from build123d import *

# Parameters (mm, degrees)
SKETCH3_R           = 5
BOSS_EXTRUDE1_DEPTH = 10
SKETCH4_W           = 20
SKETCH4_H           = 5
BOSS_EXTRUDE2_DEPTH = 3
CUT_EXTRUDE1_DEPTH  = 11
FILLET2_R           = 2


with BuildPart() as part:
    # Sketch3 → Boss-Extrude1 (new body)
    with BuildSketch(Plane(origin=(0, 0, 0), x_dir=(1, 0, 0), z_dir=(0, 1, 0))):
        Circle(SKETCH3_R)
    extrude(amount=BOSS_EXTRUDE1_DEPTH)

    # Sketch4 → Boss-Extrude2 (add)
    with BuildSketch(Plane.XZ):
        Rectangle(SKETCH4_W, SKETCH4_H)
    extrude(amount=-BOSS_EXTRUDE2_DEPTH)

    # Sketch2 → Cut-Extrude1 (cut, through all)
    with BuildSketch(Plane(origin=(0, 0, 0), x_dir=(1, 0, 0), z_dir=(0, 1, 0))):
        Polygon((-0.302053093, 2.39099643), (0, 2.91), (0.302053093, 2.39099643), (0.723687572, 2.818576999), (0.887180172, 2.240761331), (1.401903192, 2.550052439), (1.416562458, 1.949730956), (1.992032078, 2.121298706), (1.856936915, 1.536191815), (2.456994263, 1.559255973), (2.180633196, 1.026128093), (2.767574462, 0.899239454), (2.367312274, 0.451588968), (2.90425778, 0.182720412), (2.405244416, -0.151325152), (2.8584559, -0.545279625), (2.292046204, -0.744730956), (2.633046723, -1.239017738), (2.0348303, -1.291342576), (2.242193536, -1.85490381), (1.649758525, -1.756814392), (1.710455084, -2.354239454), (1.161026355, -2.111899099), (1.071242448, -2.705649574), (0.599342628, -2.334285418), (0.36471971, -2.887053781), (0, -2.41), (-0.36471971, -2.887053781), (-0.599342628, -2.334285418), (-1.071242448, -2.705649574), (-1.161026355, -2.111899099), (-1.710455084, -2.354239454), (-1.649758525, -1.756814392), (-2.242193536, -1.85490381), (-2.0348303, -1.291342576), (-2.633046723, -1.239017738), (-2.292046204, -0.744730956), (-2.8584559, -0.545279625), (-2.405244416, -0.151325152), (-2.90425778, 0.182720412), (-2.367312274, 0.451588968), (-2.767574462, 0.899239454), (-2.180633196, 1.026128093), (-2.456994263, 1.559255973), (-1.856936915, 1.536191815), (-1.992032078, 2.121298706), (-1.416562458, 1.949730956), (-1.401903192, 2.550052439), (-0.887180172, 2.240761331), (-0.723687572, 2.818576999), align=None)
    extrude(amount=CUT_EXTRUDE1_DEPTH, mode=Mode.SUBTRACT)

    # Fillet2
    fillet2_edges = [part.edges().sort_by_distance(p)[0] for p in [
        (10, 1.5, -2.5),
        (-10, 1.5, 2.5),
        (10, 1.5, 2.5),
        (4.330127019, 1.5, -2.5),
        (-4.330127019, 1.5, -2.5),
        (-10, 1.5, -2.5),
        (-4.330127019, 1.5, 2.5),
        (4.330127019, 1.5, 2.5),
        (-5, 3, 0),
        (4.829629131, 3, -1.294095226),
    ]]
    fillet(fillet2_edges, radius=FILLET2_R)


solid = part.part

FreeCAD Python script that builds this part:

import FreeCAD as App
import Part
import Sketcher


def edges_at(feature, points):
    """Names of the edges that pass closest to the given points."""
    edges = feature.Shape.Edges
    near = lambda p: min(range(len(edges)), key=lambda i: edges[i].distToShape(Part.Vertex(*p))[0])
    return sorted({f"Edge{near(p) + 1}" for p in points})

doc = App.newDocument("Part")
body = doc.addObject("PartDesign::Body", "Body")

sketch1 = body.newObject("Sketcher::SketchObject", "Sketch")
sketch1.AttachmentSupport = (doc.getObject("XZ_Plane"), [""])
sketch1.MapMode = "FlatFace"
sketch1.addGeometry(Part.Circle(App.Vector(0, 0, 0), App.Vector(0, 0, 1), 5), False)
sketch1.addConstraint(Sketcher.Constraint("Coincident", 0, 3, -1, 1))
sketch1.addConstraint(Sketcher.Constraint("Diameter", 0, 10.0))
pad1 = body.newObject("PartDesign::Pad", "Pad")
pad1.Profile = sketch1
pad1.Length = 10
pad1.Reversed = True

sketch2 = body.newObject("Sketcher::SketchObject", "Sketch001")
sketch2.AttachmentSupport = (doc.getObject("XZ_Plane"), [""])
sketch2.MapMode = "FlatFace"
sketch2.addGeometry(Part.LineSegment(App.Vector(-10, 2, 0), App.Vector(-10, -2, 0)), False)
sketch2.addGeometry(Part.LineSegment(App.Vector(-10, -2, 0), App.Vector(10, -2, 0)), False)
sketch2.addGeometry(Part.LineSegment(App.Vector(10, -2, 0), App.Vector(10, 2, 0)), False)
sketch2.addGeometry(Part.LineSegment(App.Vector(10, 2, 0), App.Vector(-10, 2, 0)), False)
sketch2.addConstraint(Sketcher.Constraint("Coincident", 0, 2, 1, 1))
sketch2.addConstraint(Sketcher.Constraint("Coincident", 1, 2, 2, 1))
sketch2.addConstraint(Sketcher.Constraint("Coincident", 2, 2, 3, 1))
sketch2.addConstraint(Sketcher.Constraint("Coincident", 3, 2, 0, 1))
sketch2.addConstraint(Sketcher.Constraint("Vertical", 0))
sketch2.addConstraint(Sketcher.Constraint("Horizontal", 1))
sketch2.addConstraint(Sketcher.Constraint("Vertical", 2))
sketch2.addConstraint(Sketcher.Constraint("Horizontal", 3))
sketch2.addConstraint(Sketcher.Constraint("Symmetric", 0, 2, 2, 2, -1, 1))
sketch2.addConstraint(Sketcher.Constraint("DistanceX", 1, 1, 1, 2, 20.0))
sketch2.addConstraint(Sketcher.Constraint("DistanceY", 0, 2, 0, 1, 5.0))
pad2 = body.newObject("PartDesign::Pad", "Pad001")
pad2.Profile = sketch2
pad2.Length = 3
pad2.Reversed = True

sketch3 = body.newObject("Sketcher::SketchObject", "Sketch002")
sketch3.AttachmentSupport = (doc.getObject("XZ_Plane"), [""])
sketch3.MapMode = "FlatFace"
sketch3.addGeometry(Part.LineSegment(App.Vector(0, -2.9, 0), App.Vector(-0.3, -2.4, 0)), False)
sketch3.addGeometry(Part.LineSegment(App.Vector(-0.3, -2.4, 0), App.Vector(-0.7, -2.8, 0)), False)
sketch3.addGeometry(Part.LineSegment(App.Vector(-0.7, -2.8, 0), App.Vector(-0.9, -2.2, 0)), False)
sketch3.addGeometry(Part.LineSegment(App.Vector(-0.9, -2.2, 0), App.Vector(-1.4, -2.6, 0)), False)
sketch3.addGeometry(Part.LineSegment(App.Vector(-1.4, -2.6, 0), App.Vector(-1.4, -1.9, 0)), False)
sketch3.addGeometry(Part.LineSegment(App.Vector(-1.4, -1.9, 0), App.Vector(-2, -2.1, 0)), False)
sketch3.addGeometry(Part.LineSegment(App.Vector(-2, -2.1, 0), App.Vector(-1.9, -1.5, 0)), False)
sketch3.addGeometry(Part.LineSegment(App.Vector(-1.9, -1.5, 0), App.Vector(-2.5, -1.6, 0)), False)
sketch3.addGeometry(Part.LineSegment(App.Vector(-2.5, -1.6, 0), App.Vector(-2.2, -1, 0)), False)
sketch3.addGeometry(Part.LineSegment(App.Vector(-2.2, -1, 0), App.Vector(-2.8, -0.9, 0)), False)
sketch3.addGeometry(Part.LineSegment(App.Vector(-2.8, -0.9, 0), App.Vector(-2.4, -0.5, 0)), False)
sketch3.addGeometry(Part.LineSegment(App.Vector(-2.4, -0.5, 0), App.Vector(-2.9, -0.2, 0)), False)
sketch3.addGeometry(Part.LineSegment(App.Vector(-2.9, -0.2, 0), App.Vector(-2.4, 0.2, 0)), False)
sketch3.addGeometry(Part.LineSegment(App.Vector(-2.4, 0.2, 0), App.Vector(-2.9, 0.5, 0)), False)
sketch3.addGeometry(Part.LineSegment(App.Vector(-2.9, 0.5, 0), App.Vector(-2.3, 0.7, 0)), False)
sketch3.addGeometry(Part.LineSegment(App.Vector(-2.3, 0.7, 0), App.Vector(-2.6, 1.2, 0)), False)
sketch3.addGeometry(Part.LineSegment(App.Vector(-2.6, 1.2, 0), App.Vector(-2, 1.3, 0)), False)
sketch3.addGeometry(Part.LineSegment(App.Vector(-2, 1.3, 0), App.Vector(-2.2, 1.9, 0)), False)
sketch3.addGeometry(Part.LineSegment(App.Vector(-2.2, 1.9, 0), App.Vector(-1.6, 1.8, 0)), False)
sketch3.addGeometry(Part.LineSegment(App.Vector(-1.6, 1.8, 0), App.Vector(-1.7, 2.4, 0)), False)
sketch3.addGeometry(Part.LineSegment(App.Vector(-1.7, 2.4, 0), App.Vector(-1.2, 2.1, 0)), False)
sketch3.addGeometry(Part.LineSegment(App.Vector(-1.2, 2.1, 0), App.Vector(-1.1, 2.7, 0)), False)
sketch3.addGeometry(Part.LineSegment(App.Vector(-1.1, 2.7, 0), App.Vector(-0.6, 2.3, 0)), False)
sketch3.addGeometry(Part.LineSegment(App.Vector(-0.6, 2.3, 0), App.Vector(-0.4, 2.9, 0)), False)
sketch3.addGeometry(Part.LineSegment(App.Vector(-0.4, 2.9, 0), App.Vector(0, 2.4, 0)), False)
sketch3.addGeometry(Part.LineSegment(App.Vector(0, 2.4, 0), App.Vector(0.4, 2.9, 0)), False)
sketch3.addGeometry(Part.LineSegment(App.Vector(0.4, 2.9, 0), App.Vector(0.6, 2.3, 0)), False)
sketch3.addGeometry(Part.LineSegment(App.Vector(0.6, 2.3, 0), App.Vector(1.1, 2.7, 0)), False)
sketch3.addGeometry(Part.LineSegment(App.Vector(1.1, 2.7, 0), App.Vector(1.2, 2.1, 0)), False)
sketch3.addGeometry(Part.LineSegment(App.Vector(1.2, 2.1, 0), App.Vector(1.7, 2.4, 0)), False)
sketch3.addGeometry(Part.LineSegment(App.Vector(1.7, 2.4, 0), App.Vector(1.6, 1.8, 0)), False)
sketch3.addGeometry(Part.LineSegment(App.Vector(1.6, 1.8, 0), App.Vector(2.2, 1.9, 0)), False)
sketch3.addGeometry(Part.LineSegment(App.Vector(2.2, 1.9, 0), App.Vector(2, 1.3, 0)), False)
sketch3.addGeometry(Part.LineSegment(App.Vector(2, 1.3, 0), App.Vector(2.6, 1.2, 0)), False)
sketch3.addGeometry(Part.LineSegment(App.Vector(2.6, 1.2, 0), App.Vector(2.3, 0.7, 0)), False)
sketch3.addGeometry(Part.LineSegment(App.Vector(2.3, 0.7, 0), App.Vector(2.9, 0.5, 0)), False)
sketch3.addGeometry(Part.LineSegment(App.Vector(2.9, 0.5, 0), App.Vector(2.4, 0.2, 0)), False)
sketch3.addGeometry(Part.LineSegment(App.Vector(2.4, 0.2, 0), App.Vector(2.9, -0.2, 0)), False)
sketch3.addGeometry(Part.LineSegment(App.Vector(2.9, -0.2, 0), App.Vector(2.4, -0.5, 0)), False)
sketch3.addGeometry(Part.LineSegment(App.Vector(2.4, -0.5, 0), App.Vector(2.8, -0.9, 0)), False)
sketch3.addGeometry(Part.LineSegment(App.Vector(2.8, -0.9, 0), App.Vector(2.2, -1, 0)), False)
sketch3.addGeometry(Part.LineSegment(App.Vector(2.2, -1, 0), App.Vector(2.5, -1.6, 0)), False)
sketch3.addGeometry(Part.LineSegment(App.Vector(2.5, -1.6, 0), App.Vector(1.9, -1.5, 0)), False)
sketch3.addGeometry(Part.LineSegment(App.Vector(1.9, -1.5, 0), App.Vector(2, -2.1, 0)), False)
sketch3.addGeometry(Part.LineSegment(App.Vector(2, -2.1, 0), App.Vector(1.4, -1.9, 0)), False)
sketch3.addGeometry(Part.LineSegment(App.Vector(1.4, -1.9, 0), App.Vector(1.4, -2.6, 0)), False)
sketch3.addGeometry(Part.LineSegment(App.Vector(1.4, -2.6, 0), App.Vector(0.9, -2.2, 0)), False)
sketch3.addGeometry(Part.LineSegment(App.Vector(0.9, -2.2, 0), App.Vector(0.7, -2.8, 0)), False)
sketch3.addGeometry(Part.LineSegment(App.Vector(0.7, -2.8, 0), App.Vector(0.3, -2.4, 0)), False)
sketch3.addGeometry(Part.LineSegment(App.Vector(0.3, -2.4, 0), App.Vector(0, -2.9, 0)), False)
sketch3.addConstraint(Sketcher.Constraint("Coincident", 0, 2, 1, 1))
sketch3.addConstraint(Sketcher.Constraint("Coincident", 1, 2, 2, 1))
sketch3.addConstraint(Sketcher.Constraint("Coincident", 2, 2, 3, 1))
sketch3.addConstraint(Sketcher.Constraint("Coincident", 3, 2, 4, 1))
sketch3.addConstraint(Sketcher.Constraint("Coincident", 4, 2, 5, 1))
sketch3.addConstraint(Sketcher.Constraint("Coincident", 5, 2, 6, 1))
sketch3.addConstraint(Sketcher.Constraint("Coincident", 6, 2, 7, 1))
sketch3.addConstraint(Sketcher.Constraint("Coincident", 7, 2, 8, 1))
sketch3.addConstraint(Sketcher.Constraint("Coincident", 8, 2, 9, 1))
sketch3.addConstraint(Sketcher.Constraint("Coincident", 9, 2, 10, 1))
sketch3.addConstraint(Sketcher.Constraint("Coincident", 10, 2, 11, 1))
sketch3.addConstraint(Sketcher.Constraint("Coincident", 11, 2, 12, 1))
sketch3.addConstraint(Sketcher.Constraint("Coincident", 12, 2, 13, 1))
sketch3.addConstraint(Sketcher.Constraint("Coincident", 13, 2, 14, 1))
sketch3.addConstraint(Sketcher.Constraint("Coincident", 14, 2, 15, 1))
sketch3.addConstraint(Sketcher.Constraint("Coincident", 15, 2, 16, 1))
sketch3.addConstraint(Sketcher.Constraint("Coincident", 16, 2, 17, 1))
sketch3.addConstraint(Sketcher.Constraint("Coincident", 17, 2, 18, 1))
sketch3.addConstraint(Sketcher.Constraint("Coincident", 18, 2, 19, 1))
sketch3.addConstraint(Sketcher.Constraint("Coincident", 19, 2, 20, 1))
sketch3.addConstraint(Sketcher.Constraint("Coincident", 20, 2, 21, 1))
sketch3.addConstraint(Sketcher.Constraint("Coincident", 21, 2, 22, 1))
sketch3.addConstraint(Sketcher.Constraint("Coincident", 22, 2, 23, 1))
sketch3.addConstraint(Sketcher.Constraint("Coincident", 23, 2, 24, 1))
sketch3.addConstraint(Sketcher.Constraint("Coincident", 24, 2, 25, 1))
sketch3.addConstraint(Sketcher.Constraint("Coincident", 25, 2, 26, 1))
sketch3.addConstraint(Sketcher.Constraint("Coincident", 26, 2, 27, 1))
sketch3.addConstraint(Sketcher.Constraint("Coincident", 27, 2, 28, 1))
sketch3.addConstraint(Sketcher.Constraint("Coincident", 28, 2, 29, 1))
sketch3.addConstraint(Sketcher.Constraint("Coincident", 29, 2, 30, 1))
sketch3.addConstraint(Sketcher.Constraint("Coincident", 30, 2, 31, 1))
sketch3.addConstraint(Sketcher.Constraint("Coincident", 31, 2, 32, 1))
sketch3.addConstraint(Sketcher.Constraint("Coincident", 32, 2, 33, 1))
sketch3.addConstraint(Sketcher.Constraint("Coincident", 33, 2, 34, 1))
sketch3.addConstraint(Sketcher.Constraint("Coincident", 34, 2, 35, 1))
sketch3.addConstraint(Sketcher.Constraint("Coincident", 35, 2, 36, 1))
sketch3.addConstraint(Sketcher.Constraint("Coincident", 36, 2, 37, 1))
sketch3.addConstraint(Sketcher.Constraint("Coincident", 37, 2, 38, 1))
sketch3.addConstraint(Sketcher.Constraint("Coincident", 38, 2, 39, 1))
sketch3.addConstraint(Sketcher.Constraint("Coincident", 39, 2, 40, 1))
sketch3.addConstraint(Sketcher.Constraint("Coincident", 40, 2, 41, 1))
sketch3.addConstraint(Sketcher.Constraint("Coincident", 41, 2, 42, 1))
sketch3.addConstraint(Sketcher.Constraint("Coincident", 42, 2, 43, 1))
sketch3.addConstraint(Sketcher.Constraint("Coincident", 43, 2, 44, 1))
sketch3.addConstraint(Sketcher.Constraint("Coincident", 44, 2, 45, 1))
sketch3.addConstraint(Sketcher.Constraint("Coincident", 45, 2, 46, 1))
sketch3.addConstraint(Sketcher.Constraint("Coincident", 46, 2, 47, 1))
sketch3.addConstraint(Sketcher.Constraint("Coincident", 47, 2, 48, 1))
sketch3.addConstraint(Sketcher.Constraint("Coincident", 48, 2, 49, 1))
sketch3.addConstraint(Sketcher.Constraint("Coincident", 49, 2, 0, 1))
sketch3.addConstraint(Sketcher.Constraint("Symmetric", 23, 2, 25, 2, -2))
sketch3.addConstraint(Sketcher.Constraint("Symmetric", 22, 2, 26, 2, -2))
sketch3.addConstraint(Sketcher.Constraint("Symmetric", 21, 2, 27, 2, -2))
sketch3.addConstraint(Sketcher.Constraint("Symmetric", 20, 2, 28, 2, -2))
sketch3.addConstraint(Sketcher.Constraint("Symmetric", 19, 2, 29, 2, -2))
sketch3.addConstraint(Sketcher.Constraint("Symmetric", 18, 2, 30, 2, -2))
sketch3.addConstraint(Sketcher.Constraint("Symmetric", 17, 2, 31, 2, -2))
sketch3.addConstraint(Sketcher.Constraint("Symmetric", 16, 2, 32, 2, -2))
sketch3.addConstraint(Sketcher.Constraint("Symmetric", 15, 2, 33, 2, -2))
sketch3.addConstraint(Sketcher.Constraint("Symmetric", 14, 2, 34, 2, -2))
sketch3.addConstraint(Sketcher.Constraint("Symmetric", 13, 2, 35, 2, -2))
sketch3.addConstraint(Sketcher.Constraint("Symmetric", 12, 2, 36, 2, -2))
sketch3.addConstraint(Sketcher.Constraint("Symmetric", 11, 2, 37, 2, -2))
sketch3.addConstraint(Sketcher.Constraint("Symmetric", 10, 2, 38, 2, -2))
sketch3.addConstraint(Sketcher.Constraint("Symmetric", 9, 2, 39, 2, -2))
sketch3.addConstraint(Sketcher.Constraint("Symmetric", 8, 2, 40, 2, -2))
sketch3.addConstraint(Sketcher.Constraint("Symmetric", 7, 2, 41, 2, -2))
sketch3.addConstraint(Sketcher.Constraint("Symmetric", 6, 2, 42, 2, -2))
sketch3.addConstraint(Sketcher.Constraint("Symmetric", 5, 2, 43, 2, -2))
sketch3.addConstraint(Sketcher.Constraint("Symmetric", 4, 2, 44, 2, -2))
sketch3.addConstraint(Sketcher.Constraint("Symmetric", 3, 2, 45, 2, -2))
sketch3.addConstraint(Sketcher.Constraint("Symmetric", 2, 2, 46, 2, -2))
sketch3.addConstraint(Sketcher.Constraint("Symmetric", 1, 2, 47, 2, -2))
sketch3.addConstraint(Sketcher.Constraint("Symmetric", 0, 2, 48, 2, -2))
sketch3.addConstraint(Sketcher.Constraint("PointOnObject", 24, 2, -2))
sketch3.addConstraint(Sketcher.Constraint("PointOnObject", 49, 2, -2))
sketch3.addConstraint(Sketcher.Constraint("Equal", 0, 1))
sketch3.addConstraint(Sketcher.Constraint("Equal", 1, 2))
sketch3.addConstraint(Sketcher.Constraint("Equal", 2, 3))
sketch3.addConstraint(Sketcher.Constraint("Equal", 3, 4))
sketch3.addConstraint(Sketcher.Constraint("Equal", 4, 5))
sketch3.addConstraint(Sketcher.Constraint("Equal", 5, 6))
sketch3.addConstraint(Sketcher.Constraint("Equal", 6, 7))
sketch3.addConstraint(Sketcher.Constraint("Equal", 7, 8))
sketch3.addConstraint(Sketcher.Constraint("Equal", 8, 9))
sketch3.addConstraint(Sketcher.Constraint("Equal", 9, 10))
sketch3.addConstraint(Sketcher.Constraint("Equal", 10, 11))
sketch3.addConstraint(Sketcher.Constraint("Equal", 11, 12))
sketch3.addConstraint(Sketcher.Constraint("Equal", 12, 13))
sketch3.addConstraint(Sketcher.Constraint("Equal", 13, 14))
sketch3.addConstraint(Sketcher.Constraint("Equal", 14, 15))
sketch3.addConstraint(Sketcher.Constraint("Equal", 15, 16))
sketch3.addConstraint(Sketcher.Constraint("Equal", 16, 17))
sketch3.addConstraint(Sketcher.Constraint("Equal", 17, 18))
sketch3.addConstraint(Sketcher.Constraint("Equal", 18, 19))
sketch3.addConstraint(Sketcher.Constraint("Equal", 19, 20))
sketch3.addConstraint(Sketcher.Constraint("Equal", 20, 21))
sketch3.addConstraint(Sketcher.Constraint("Equal", 21, 22))
sketch3.addConstraint(Sketcher.Constraint("Equal", 22, 23))
sketch3.addConstraint(Sketcher.Constraint("Equal", 23, 24))
sketch3.addConstraint(Sketcher.Constraint("DistanceY", -1, 1, 24, 2, 2.41))
sketch3.addConstraint(Sketcher.Constraint("DistanceY", 49, 2, -1, 1, 2.91))
sketch3.addConstraint(Sketcher.Constraint("DistanceY", 11, 2, 13, 2, 0.728))
sketch3.addConstraint(Sketcher.Constraint("DistanceX", 15, 2, 14, 2, 0.341001))
sketch3.addConstraint(Sketcher.Constraint("Distance", 0, 0.6005))
sketch3.addConstraint(Sketcher.Constraint("DistanceY", 5, 2, -1, 1, 2.121299))
sketch3.addConstraint(Sketcher.Constraint("DistanceY", -1, 1, 20, 2, 2.111899))
sketch3.addConstraint(Sketcher.Constraint("DistanceX", 8, 2, 5, 2, 0.188601))
sketch3.addConstraint(Sketcher.Constraint("DistanceX", 11, 2, 13, 2, 0.045802))
sketch3.addConstraint(Sketcher.Constraint("DistanceX", 12, 2, 14, 2, 0.113198))
sketch3.addConstraint(Sketcher.Constraint("DistanceX", 21, 2, 22, 2, 0.4719))
sketch3.addConstraint(Sketcher.Constraint("DistanceX", 2, 2, -1, 1, 0.88718))
sketch3.addConstraint(Sketcher.Constraint("DistanceY", 2, 2, -1, 1, 2.240761))
sketch3.addConstraint(Sketcher.Constraint("DistanceY", 4, 2, -1, 1, 1.949731))
sketch3.addConstraint(Sketcher.Constraint("DistanceY", 6, 2, -1, 1, 1.536192))
sketch3.addConstraint(Sketcher.Constraint("DistanceY", 8, 2, -1, 1, 1.026128))
sketch3.addConstraint(Sketcher.Constraint("DistanceY", 9, 2, -1, 1, 0.899239))
sketch3.addConstraint(Sketcher.Constraint("DistanceY", 10, 2, -1, 1, 0.451589))
sketch3.addConstraint(Sketcher.Constraint("DistanceY", 11, 2, -1, 1, 0.18272))
sketch3.addConstraint(Sketcher.Constraint("DistanceX", 16, 2, -1, 1, 2.03483))
sketch3.addConstraint(Sketcher.Constraint("DistanceX", 18, 2, -1, 1, 1.649759))
sketch3.addConstraint(Sketcher.Constraint("DistanceY", -1, 1, 19, 2, 2.354239))
sketch3.addConstraint(Sketcher.Constraint("DistanceY", -1, 1, 21, 2, 2.70565))
sketch3.addConstraint(Sketcher.Constraint("DistanceX", 23, 2, -1, 1, 0.36472))
sketch3.addConstraint(Sketcher.Constraint("DistanceY", 1, 2, 0, 2, 0.427581))
sketch3.addConstraint(Sketcher.Constraint("DistanceX", 4, 2, 3, 2, 0.014659))
pocket1 = body.newObject("PartDesign::Pocket", "Pocket")
pocket1.Profile = sketch3
pocket1.Type = "ThroughAll"
doc.recompute()

fillet = body.newObject("PartDesign::Fillet", "Fillet")
fillet.Base = (pocket1, edges_at(pocket1, [
    (10, 1.5, -2.5),
    (-10, 1.5, 2.5),
    (10, 1.5, 2.5),
    (4.33, 1.5, -2.5),
    (-4.33, 1.5, -2.5),
    (-10, 1.5, -2.5),
    (-4.33, 1.5, 2.5),
    (4.33, 1.5, 2.5),
    (-5, 3, 0),
    (4.83, 3, -1.294),
]))
fillet.Radius = 2

doc.recompute()
